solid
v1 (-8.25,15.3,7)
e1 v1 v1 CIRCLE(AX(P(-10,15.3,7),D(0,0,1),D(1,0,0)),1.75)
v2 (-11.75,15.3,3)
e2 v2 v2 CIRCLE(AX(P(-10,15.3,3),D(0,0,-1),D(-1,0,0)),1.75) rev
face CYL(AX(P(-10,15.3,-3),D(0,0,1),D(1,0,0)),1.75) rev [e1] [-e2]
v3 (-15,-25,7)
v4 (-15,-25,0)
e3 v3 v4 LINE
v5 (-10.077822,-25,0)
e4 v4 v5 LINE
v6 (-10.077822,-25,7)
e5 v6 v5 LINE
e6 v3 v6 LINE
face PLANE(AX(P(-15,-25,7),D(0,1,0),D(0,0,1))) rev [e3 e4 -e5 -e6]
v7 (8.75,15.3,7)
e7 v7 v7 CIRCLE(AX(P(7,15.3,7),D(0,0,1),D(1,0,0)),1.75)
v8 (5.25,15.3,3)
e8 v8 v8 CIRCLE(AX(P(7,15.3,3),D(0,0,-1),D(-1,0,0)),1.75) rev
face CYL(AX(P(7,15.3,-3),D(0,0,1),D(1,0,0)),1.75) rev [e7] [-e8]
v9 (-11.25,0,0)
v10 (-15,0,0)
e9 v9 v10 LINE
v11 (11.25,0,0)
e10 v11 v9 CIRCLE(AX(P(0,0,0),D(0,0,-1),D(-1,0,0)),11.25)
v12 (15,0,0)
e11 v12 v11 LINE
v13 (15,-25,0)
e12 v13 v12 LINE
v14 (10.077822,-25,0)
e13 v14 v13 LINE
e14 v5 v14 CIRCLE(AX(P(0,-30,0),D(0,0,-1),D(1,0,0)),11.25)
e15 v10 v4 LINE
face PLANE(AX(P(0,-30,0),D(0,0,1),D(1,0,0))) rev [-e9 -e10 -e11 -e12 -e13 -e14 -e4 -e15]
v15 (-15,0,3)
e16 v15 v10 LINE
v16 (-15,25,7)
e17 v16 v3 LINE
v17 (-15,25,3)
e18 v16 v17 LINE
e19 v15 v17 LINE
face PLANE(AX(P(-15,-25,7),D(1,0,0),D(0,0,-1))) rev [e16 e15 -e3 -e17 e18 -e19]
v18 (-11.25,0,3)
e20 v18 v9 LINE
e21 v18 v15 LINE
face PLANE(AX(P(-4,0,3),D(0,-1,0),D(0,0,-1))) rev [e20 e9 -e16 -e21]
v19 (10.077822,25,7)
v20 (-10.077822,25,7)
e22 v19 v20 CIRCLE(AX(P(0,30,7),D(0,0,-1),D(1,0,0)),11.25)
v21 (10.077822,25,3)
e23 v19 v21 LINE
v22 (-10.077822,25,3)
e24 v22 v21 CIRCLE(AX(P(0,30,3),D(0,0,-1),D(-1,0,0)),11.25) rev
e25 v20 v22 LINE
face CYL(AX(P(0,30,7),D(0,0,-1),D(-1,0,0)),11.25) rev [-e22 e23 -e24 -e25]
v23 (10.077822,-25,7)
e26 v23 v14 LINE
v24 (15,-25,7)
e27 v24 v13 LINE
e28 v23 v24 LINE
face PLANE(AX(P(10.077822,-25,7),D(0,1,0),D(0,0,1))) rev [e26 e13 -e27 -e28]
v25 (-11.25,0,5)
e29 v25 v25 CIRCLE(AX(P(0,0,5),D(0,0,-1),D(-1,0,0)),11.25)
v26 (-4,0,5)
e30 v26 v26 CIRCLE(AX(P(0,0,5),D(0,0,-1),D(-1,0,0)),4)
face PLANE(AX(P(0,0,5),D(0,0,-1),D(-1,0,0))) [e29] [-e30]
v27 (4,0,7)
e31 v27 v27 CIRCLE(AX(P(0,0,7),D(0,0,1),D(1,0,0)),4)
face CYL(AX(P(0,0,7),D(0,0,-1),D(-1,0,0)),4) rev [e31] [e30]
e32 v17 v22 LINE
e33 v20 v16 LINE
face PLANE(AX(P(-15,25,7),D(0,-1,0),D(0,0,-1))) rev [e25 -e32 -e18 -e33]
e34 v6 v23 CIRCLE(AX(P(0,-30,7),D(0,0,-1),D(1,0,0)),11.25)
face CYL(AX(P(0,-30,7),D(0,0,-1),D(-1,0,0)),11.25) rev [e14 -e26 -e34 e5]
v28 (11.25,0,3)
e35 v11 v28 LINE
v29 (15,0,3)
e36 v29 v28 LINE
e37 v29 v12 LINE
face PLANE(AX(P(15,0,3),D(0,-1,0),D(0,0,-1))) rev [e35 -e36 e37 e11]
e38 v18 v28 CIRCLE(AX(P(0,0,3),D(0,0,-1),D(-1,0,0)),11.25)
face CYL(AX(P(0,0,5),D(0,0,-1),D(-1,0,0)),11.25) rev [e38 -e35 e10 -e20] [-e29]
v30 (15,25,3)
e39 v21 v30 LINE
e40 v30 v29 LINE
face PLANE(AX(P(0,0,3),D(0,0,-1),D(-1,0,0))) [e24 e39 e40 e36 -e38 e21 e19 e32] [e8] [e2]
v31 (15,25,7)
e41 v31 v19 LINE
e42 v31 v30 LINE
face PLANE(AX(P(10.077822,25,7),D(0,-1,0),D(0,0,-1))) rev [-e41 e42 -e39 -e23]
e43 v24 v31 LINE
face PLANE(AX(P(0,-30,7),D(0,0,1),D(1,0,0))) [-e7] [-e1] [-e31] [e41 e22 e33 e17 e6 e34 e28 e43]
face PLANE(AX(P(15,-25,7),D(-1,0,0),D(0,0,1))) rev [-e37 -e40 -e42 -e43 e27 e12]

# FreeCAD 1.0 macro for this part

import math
import FreeCAD as App
import Part
import Sketcher
Q = App.Units.Quantity

doc = App.newDocument("Part")
body = doc.addObject("PartDesign::Body", "Body")

# Sketch on XY plane
sketch1 = body.newObject("Sketcher::SketchObject", "Sketch")
sketch1.AttachmentSupport = (doc.getObject("XY_Plane"), [""])
sketch1.MapMode = "FlatFace"
sketch1.addGeometry([
    Part.LineSegment(App.Vector(-15, -25, 0), App.Vector(-10.077822, -25, 0)),  # 0
    Part.ArcOfCircle(Part.Circle(App.Vector(0, -30, 0), App.Vector(0, 0, 1), 11.25), math.radians(26.3878), math.radians(153.6122)),  # 1
    Part.LineSegment(App.Vector(10.077822, -25, 0), App.Vector(15, -25, 0)),  # 2
    Part.LineSegment(App.Vector(15, -25, 0), App.Vector(15, 25, 0)),  # 3
    Part.LineSegment(App.Vector(15, 25, 0), App.Vector(10.077822, 25, 0)),  # 4
    Part.ArcOfCircle(Part.Circle(App.Vector(0, 30, 0), App.Vector(0, 0, 1), 11.25), math.radians(-153.6122), math.radians(-26.3878)),  # 5
    Part.LineSegment(App.Vector(-10.077822, 25, 0), App.Vector(-15, 25, 0)),  # 6
    Part.LineSegment(App.Vector(-15, 25, 0), App.Vector(-15, -25, 0)),  # 7
    Part.Circle(App.Vector(0, 0, 0), App.Vector(0, 0, 1), 4),  # 8
], False)
sketch1.addConstraint([
    Sketcher.Constraint("Coincident", 0, 2, 1, 2),
    Sketcher.Constraint("Coincident", 1, 1, 2, 1),
    Sketcher.Constraint("Coincident", 2, 2, 3, 1),
    Sketcher.Constraint("Coincident", 3, 2, 4, 1),
    Sketcher.Constraint("Coincident", 4, 2, 5, 2),
    Sketcher.Constraint("Coincident", 5, 1, 6, 1),
    Sketcher.Constraint("Coincident", 6, 2, 7, 1),
    Sketcher.Constraint("Coincident", 7, 2, 0, 1),
    Sketcher.Constraint("Horizontal", 0),
    Sketcher.Constraint("Horizontal", 2),
    Sketcher.Constraint("Vertical", 3),
    Sketcher.Constraint("Horizontal", 4),
    Sketcher.Constraint("Horizontal", 6),
    Sketcher.Constraint("Vertical", 7),
    Sketcher.Constraint("Coincident", 8, 3, -1, 1),
    Sketcher.Constraint("Equal", 1, 5),
    Sketcher.Constraint("Symmetric", 1, 3, 5, 3, -1, 1),
    Sketcher.Constraint("Symmetric", 2, 2, 6, 2, -1, 1),
    Sketcher.Constraint("Symmetric", 0, 2, 1, 1, -2),
    Sketcher.Constraint("Horizontal", 4, 2, 5, 1),
    Sketcher.Constraint("Diameter", 8, Q("8 mm")),
    Sketcher.Constraint("DistanceY", 3, 1, 3, 2, Q("50 mm")),
    Sketcher.Constraint("Radius", 1, Q("11.25 mm")),
    Sketcher.Constraint("DistanceY", 1, 3, -1, 1, Q("30 mm")),
    Sketcher.Constraint("DistanceX", -1, 1, 2, 2, Q("15 mm")),
])
pad1 = body.newObject("PartDesign::Pad", "Pad")
pad1.Profile = sketch1
pad1.Length = 7

# Sketch on XY plane
sketch2 = body.newObject("Sketcher::SketchObject", "Sketch001")
sketch2.AttachmentSupport = (doc.getObject("XY_Plane"), [""])
sketch2.MapMode = "FlatFace"
sketch2.AttachmentOffset = App.Placement(App.Vector(0, 0, 7), App.Rotation())
sketch2.addGeometry([
    Part.Circle(App.Vector(-10, 15.3, 0), App.Vector(0, 0, 1), 1.75),
    Part.Circle(App.Vector(7, 15.3, 0), App.Vector(0, 0, 1), 1.75),
], False)
sketch2.addConstraint([
    Sketcher.Constraint("Equal", 0, 1),
    Sketcher.Constraint("Horizontal", 0, 3, 1, 3),
    Sketcher.Constraint("Diameter", 0, Q("3.5 mm")),
    Sketcher.Constraint("DistanceX", 0, 3, -1, 1, Q("10 mm")),
    Sketcher.Constraint("DistanceX", -1, 1, 1, 3, Q("7 mm")),
    Sketcher.Constraint("DistanceY", -1, 1, 0, 3, Q("15.3 mm")),
])
pocket1 = body.newObject("PartDesign::Pocket", "Pocket")
pocket1.Profile = sketch2
pocket1.Length = 10

# Sketch on XY plane
sketch3 = body.newObject("Sketcher::SketchObject", "Sketch002")
sketch3.AttachmentSupport = (doc.getObject("XY_Plane"), [""])
sketch3.MapMode = "FlatFace"
sketch3.addGeometry([
    Part.LineSegment(App.Vector(15, 0, 0), App.Vector(4, 0, 0)),  # 0
    Part.ArcOfCircle(Part.Circle(App.Vector(0, 0, 0), App.Vector(0, 0, 1), 4), math.radians(0), math.radians(180)),  # 1
    Part.LineSegment(App.Vector(-4, 0, 0), App.Vector(-15, 0, 0)),  # 2
    Part.LineSegment(App.Vector(-15, 0, 0), App.Vector(-15, 25, 0)),  # 3
    Part.LineSegment(App.Vector(-15, 25, 0), App.Vector(15, 25, 0)),  # 4
    Part.LineSegment(App.Vector(15, 25, 0), App.Vector(15, 0, 0)),  # 5
], False)
sketch3.addConstraint([
    Sketcher.Constraint("Coincident", 0, 2, 1, 1),
    Sketcher.Constraint("Coincident", 1, 2, 2, 1),
    Sketcher.Constraint("Coincident", 2, 2, 3, 1),
    Sketcher.Constraint("Coincident", 3, 2, 4, 1),
    Sketcher.Constraint("Coincident", 4, 2, 5, 1),
    Sketcher.Constraint("Coincident", 5, 2, 0, 1),
    Sketcher.Constraint("Horizontal", 0),
    Sketcher.Constraint("Horizontal", 2),
    Sketcher.Constraint("Vertical", 3),
    Sketcher.Constraint("Horizontal", 4),
    Sketcher.Constraint("Vertical", 5),
    Sketcher.Constraint("Coincident", 1, 3, -1, 1),
    Sketcher.Constraint("Symmetric", 2, 2, 5, 2, -1, 1),
    Sketcher.Constraint("PointOnObject", 0, 2, -1),
    Sketcher.Constraint("Radius", 1, Q("4 mm")),
    Sketcher.Constraint("DistanceX", 0, 2, 0, 1, Q("11 mm")),
    Sketcher.Constraint("DistanceY", 3, 1, 3, 2, Q("25 mm")),
])
pocket2 = body.newObject("PartDesign::Pocket", "Pocket001")
pocket2.Profile = sketch3
pocket2.Length = 3
pocket2.Reversed = True

# Sketch on XY plane
sketch4 = body.newObject("Sketcher::SketchObject", "Sketch003")
sketch4.AttachmentSupport = (doc.getObject("XY_Plane"), [""])
sketch4.MapMode = "FlatFace"
sketch4.addGeometry(Part.Circle(App.Vector(0, 0, 0), App.Vector(0, 0, 1), 11.25), False)
sketch4.addConstraint([
    Sketcher.Constraint("Coincident", 0, 3, -1, 1),
    Sketcher.Constraint("Diameter", 0, Q("22.5 mm")),
])
pocket3 = body.newObject("PartDesign::Pocket", "Pocket002")
pocket3.Profile = sketch4
pocket3.Length = 5
pocket3.Reversed = True

doc.recompute()
